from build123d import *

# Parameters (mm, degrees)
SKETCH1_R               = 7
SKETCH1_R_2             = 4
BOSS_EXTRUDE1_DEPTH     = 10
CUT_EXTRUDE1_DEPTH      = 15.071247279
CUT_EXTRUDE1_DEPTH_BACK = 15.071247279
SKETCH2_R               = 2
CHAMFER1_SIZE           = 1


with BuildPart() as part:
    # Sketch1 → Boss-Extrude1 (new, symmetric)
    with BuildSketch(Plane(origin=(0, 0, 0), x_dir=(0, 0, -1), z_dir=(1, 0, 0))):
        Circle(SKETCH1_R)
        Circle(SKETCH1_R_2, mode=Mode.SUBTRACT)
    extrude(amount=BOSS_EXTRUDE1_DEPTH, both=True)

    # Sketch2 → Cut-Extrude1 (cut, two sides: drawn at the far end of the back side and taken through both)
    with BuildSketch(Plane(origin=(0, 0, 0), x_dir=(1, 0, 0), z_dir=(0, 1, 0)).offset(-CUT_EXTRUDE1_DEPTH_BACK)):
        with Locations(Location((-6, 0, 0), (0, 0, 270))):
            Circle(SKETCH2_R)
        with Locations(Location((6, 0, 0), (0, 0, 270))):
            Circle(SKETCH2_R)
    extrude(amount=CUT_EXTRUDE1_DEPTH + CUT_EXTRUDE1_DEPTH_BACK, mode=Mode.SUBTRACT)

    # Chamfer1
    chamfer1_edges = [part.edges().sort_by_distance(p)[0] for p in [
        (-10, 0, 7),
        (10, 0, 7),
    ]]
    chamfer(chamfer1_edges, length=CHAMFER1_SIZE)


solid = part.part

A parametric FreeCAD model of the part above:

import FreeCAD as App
import Part
import Sketcher
Q = App.Units.Quantity


def edges_at(feature, points):
    """Names of the edges that pass closest to the given points."""
    edges = feature.Shape.Edges
    near = lambda p: min(range(len(edges)), key=lambda i: edges[i].distToShape(Part.Vertex(*p))[0])
    return sorted({f"Edge{near(p) + 1}" for p in points})

doc = App.newDocument("Part")
body = doc.addObject("PartDesign::Body", "Body")

# Sketch on YZ plane
sketch1 = body.newObject("Sketcher::SketchObject", "Sketch")
sketch1.AttachmentSupport = (doc.getObject("YZ_Plane"), [""])
sketch1.MapMode = "FlatFace"
sketch1.addGeometry([
    Part.Circle(App.Vector(0, 0, 0), App.Vector(0, 0, 1), 7),
    Part.Circle(App.Vector(0, 0, 0), App.Vector(0, 0, 1), 4),
], False)
sketch1.addConstraint([
    Sketcher.Constraint("Coincident", 0, 3, -1, 1),
    Sketcher.Constraint("Coincident", 1, 3, -1, 1),
    Sketcher.Constraint("Diameter", 0, Q("14 mm")),
    Sketcher.Constraint("Diameter", 1, Q("8 mm")),
])
pad1 = body.newObject("PartDesign::Pad", "Pad")
pad1.Profile = sketch1
pad1.Length = 20
pad1.Midplane = True

# Sketch on XZ plane
sketch2 = body.newObject("Sketcher::SketchObject", "Sketch001")
sketch2.AttachmentSupport = (doc.getObject("XZ_Plane"), [""])
sketch2.MapMode = "FlatFace"
sketch2.addGeometry([
    Part.Circle(App.Vector(-6, 0, 0), App.Vector(0, 0, 1), 2),
    Part.Circle(App.Vector(6, 0, 0), App.Vector(0, 0, 1), 2),
], False)
sketch2.addConstraint([
    Sketcher.Constraint("Equal", 0, 1),
    Sketcher.Constraint("Symmetric", 0, 3, 1, 3, -1, 1),
    Sketcher.Constraint("PointOnObject", 0, 3, -1),
    Sketcher.Constraint("Diameter", 0, Q("4 mm")),
    Sketcher.Constraint("DistanceX", 0, 3, -1, 1, Q("6 mm")),
])
pocket1 = body.newObject("PartDesign::Pocket", "Pocket")
pocket1.Profile = sketch2
pocket1.Type = "ThroughAll"
pocket1.Midplane = True
doc.recompute()

chamfer = body.newObject("PartDesign::Chamfer", "Chamfer")
chamfer.Base = (pocket1, edges_at(pocket1, [(-10, 0, 7), (10, 0, 7)]))
chamfer.Size = 1

doc.recompute()
